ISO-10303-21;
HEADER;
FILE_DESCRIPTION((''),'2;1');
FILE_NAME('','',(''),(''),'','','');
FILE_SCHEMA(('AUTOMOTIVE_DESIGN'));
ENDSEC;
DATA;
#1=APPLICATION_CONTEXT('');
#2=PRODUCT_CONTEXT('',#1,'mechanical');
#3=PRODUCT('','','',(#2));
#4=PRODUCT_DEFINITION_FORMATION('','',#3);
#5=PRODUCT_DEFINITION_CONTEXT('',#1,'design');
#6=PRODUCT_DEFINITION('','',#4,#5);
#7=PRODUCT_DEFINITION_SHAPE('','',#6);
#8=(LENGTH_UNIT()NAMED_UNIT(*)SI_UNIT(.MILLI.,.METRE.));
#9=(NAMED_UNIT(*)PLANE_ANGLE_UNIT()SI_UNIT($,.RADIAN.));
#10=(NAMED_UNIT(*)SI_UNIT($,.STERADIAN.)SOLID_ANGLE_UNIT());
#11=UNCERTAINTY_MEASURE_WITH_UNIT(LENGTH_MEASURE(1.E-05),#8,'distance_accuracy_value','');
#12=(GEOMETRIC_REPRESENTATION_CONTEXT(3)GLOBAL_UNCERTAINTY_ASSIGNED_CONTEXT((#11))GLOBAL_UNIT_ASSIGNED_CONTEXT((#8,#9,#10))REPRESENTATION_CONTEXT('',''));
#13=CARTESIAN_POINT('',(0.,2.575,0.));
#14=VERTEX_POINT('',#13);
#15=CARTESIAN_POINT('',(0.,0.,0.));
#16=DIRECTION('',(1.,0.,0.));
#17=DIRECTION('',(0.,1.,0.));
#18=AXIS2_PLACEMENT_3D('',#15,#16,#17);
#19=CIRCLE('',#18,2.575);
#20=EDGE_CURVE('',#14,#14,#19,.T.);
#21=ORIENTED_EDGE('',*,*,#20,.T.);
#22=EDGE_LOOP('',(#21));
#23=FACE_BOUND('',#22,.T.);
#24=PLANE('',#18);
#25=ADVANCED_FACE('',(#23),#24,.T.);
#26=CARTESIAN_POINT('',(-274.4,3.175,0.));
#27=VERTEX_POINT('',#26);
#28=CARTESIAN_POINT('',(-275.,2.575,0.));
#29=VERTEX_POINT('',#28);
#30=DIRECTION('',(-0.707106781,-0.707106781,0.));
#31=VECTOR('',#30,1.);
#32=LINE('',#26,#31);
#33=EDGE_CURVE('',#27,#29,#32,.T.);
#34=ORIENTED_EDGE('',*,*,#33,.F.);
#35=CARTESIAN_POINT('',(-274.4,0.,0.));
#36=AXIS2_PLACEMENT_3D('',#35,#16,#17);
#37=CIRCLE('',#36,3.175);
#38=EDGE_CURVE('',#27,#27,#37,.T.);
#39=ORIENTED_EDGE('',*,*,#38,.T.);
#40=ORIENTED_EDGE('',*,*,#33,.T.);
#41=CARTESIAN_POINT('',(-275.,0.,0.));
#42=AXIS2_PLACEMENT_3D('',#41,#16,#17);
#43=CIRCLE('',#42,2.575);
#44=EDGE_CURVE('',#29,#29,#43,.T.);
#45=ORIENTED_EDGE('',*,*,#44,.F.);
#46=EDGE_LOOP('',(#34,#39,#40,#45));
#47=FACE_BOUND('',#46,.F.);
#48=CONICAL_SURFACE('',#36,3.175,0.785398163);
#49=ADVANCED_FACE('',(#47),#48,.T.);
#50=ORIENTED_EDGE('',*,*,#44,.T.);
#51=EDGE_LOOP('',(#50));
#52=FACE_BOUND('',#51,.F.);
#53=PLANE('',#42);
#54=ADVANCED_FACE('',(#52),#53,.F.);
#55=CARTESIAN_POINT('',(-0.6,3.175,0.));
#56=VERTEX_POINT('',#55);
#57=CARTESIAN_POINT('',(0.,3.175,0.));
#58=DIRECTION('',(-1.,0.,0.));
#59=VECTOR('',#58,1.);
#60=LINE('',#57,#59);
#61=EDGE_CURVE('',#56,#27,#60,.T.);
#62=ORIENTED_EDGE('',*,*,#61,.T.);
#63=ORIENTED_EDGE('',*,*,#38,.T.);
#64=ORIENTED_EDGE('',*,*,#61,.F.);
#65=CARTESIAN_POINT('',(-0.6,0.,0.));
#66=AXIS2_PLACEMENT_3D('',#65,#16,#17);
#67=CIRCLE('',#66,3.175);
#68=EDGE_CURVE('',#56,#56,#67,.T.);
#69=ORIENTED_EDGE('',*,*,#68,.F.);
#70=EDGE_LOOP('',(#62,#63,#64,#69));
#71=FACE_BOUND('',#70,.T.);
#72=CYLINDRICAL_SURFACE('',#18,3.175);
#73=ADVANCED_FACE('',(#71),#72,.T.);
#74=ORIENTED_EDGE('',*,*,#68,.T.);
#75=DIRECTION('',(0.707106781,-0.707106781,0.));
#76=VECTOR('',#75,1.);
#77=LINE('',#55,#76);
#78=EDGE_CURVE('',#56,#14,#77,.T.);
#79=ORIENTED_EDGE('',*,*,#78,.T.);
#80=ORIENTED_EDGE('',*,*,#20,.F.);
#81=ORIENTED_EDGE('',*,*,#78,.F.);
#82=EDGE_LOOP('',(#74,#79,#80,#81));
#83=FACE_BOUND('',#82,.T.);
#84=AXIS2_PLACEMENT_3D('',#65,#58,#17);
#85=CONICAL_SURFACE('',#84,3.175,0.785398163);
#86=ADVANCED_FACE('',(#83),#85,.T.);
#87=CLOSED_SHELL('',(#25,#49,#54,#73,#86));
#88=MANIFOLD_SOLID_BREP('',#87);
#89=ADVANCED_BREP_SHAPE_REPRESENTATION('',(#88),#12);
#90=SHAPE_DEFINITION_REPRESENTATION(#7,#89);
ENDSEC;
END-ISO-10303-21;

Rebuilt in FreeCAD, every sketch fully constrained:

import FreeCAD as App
import Part
import Sketcher
from FreeCAD import Vector


def edges_at(feature, points):
    """Names of the edges that pass closest to the given points."""
    edges = feature.Shape.Edges
    near = lambda p: min(range(len(edges)), key=lambda i: edges[i].distToShape(Part.Vertex(*p))[0])
    return sorted({f"Edge{near(p) + 1}" for p in points})

doc = App.newDocument("Part")
body = doc.addObject("PartDesign::Body", "Body")

# Sketch on YZ plane
sketch1 = body.newObject("Sketcher::SketchObject", "Sketch")
sketch1.AttachmentSupport = (doc.getObject("YZ_Plane"), [""])
sketch1.MapMode = "FlatFace"
sketch1.addGeometry(Part.Circle(Vector(0, 0, 0), Vector(0, 0, 1), 3.2), False)
sketch1.addConstraint(Sketcher.Constraint("Coincident", 0, 3, -1, 1))
sketch1.addConstraint(Sketcher.Constraint("Diameter", 0, 6.35))
pad1 = body.newObject("PartDesign::Pad", "Pad")
pad1.Profile = sketch1
pad1.Length = 275
pad1.Reversed = True
doc.recompute()

chamfer = body.newObject("PartDesign::Chamfer", "Chamfer")
chamfer.Base = (pad1, edges_at(pad1, [(0, -3.175, 0), (-275, -3.175, 0)]))
chamfer.Size = 0.6

doc.recompute()
